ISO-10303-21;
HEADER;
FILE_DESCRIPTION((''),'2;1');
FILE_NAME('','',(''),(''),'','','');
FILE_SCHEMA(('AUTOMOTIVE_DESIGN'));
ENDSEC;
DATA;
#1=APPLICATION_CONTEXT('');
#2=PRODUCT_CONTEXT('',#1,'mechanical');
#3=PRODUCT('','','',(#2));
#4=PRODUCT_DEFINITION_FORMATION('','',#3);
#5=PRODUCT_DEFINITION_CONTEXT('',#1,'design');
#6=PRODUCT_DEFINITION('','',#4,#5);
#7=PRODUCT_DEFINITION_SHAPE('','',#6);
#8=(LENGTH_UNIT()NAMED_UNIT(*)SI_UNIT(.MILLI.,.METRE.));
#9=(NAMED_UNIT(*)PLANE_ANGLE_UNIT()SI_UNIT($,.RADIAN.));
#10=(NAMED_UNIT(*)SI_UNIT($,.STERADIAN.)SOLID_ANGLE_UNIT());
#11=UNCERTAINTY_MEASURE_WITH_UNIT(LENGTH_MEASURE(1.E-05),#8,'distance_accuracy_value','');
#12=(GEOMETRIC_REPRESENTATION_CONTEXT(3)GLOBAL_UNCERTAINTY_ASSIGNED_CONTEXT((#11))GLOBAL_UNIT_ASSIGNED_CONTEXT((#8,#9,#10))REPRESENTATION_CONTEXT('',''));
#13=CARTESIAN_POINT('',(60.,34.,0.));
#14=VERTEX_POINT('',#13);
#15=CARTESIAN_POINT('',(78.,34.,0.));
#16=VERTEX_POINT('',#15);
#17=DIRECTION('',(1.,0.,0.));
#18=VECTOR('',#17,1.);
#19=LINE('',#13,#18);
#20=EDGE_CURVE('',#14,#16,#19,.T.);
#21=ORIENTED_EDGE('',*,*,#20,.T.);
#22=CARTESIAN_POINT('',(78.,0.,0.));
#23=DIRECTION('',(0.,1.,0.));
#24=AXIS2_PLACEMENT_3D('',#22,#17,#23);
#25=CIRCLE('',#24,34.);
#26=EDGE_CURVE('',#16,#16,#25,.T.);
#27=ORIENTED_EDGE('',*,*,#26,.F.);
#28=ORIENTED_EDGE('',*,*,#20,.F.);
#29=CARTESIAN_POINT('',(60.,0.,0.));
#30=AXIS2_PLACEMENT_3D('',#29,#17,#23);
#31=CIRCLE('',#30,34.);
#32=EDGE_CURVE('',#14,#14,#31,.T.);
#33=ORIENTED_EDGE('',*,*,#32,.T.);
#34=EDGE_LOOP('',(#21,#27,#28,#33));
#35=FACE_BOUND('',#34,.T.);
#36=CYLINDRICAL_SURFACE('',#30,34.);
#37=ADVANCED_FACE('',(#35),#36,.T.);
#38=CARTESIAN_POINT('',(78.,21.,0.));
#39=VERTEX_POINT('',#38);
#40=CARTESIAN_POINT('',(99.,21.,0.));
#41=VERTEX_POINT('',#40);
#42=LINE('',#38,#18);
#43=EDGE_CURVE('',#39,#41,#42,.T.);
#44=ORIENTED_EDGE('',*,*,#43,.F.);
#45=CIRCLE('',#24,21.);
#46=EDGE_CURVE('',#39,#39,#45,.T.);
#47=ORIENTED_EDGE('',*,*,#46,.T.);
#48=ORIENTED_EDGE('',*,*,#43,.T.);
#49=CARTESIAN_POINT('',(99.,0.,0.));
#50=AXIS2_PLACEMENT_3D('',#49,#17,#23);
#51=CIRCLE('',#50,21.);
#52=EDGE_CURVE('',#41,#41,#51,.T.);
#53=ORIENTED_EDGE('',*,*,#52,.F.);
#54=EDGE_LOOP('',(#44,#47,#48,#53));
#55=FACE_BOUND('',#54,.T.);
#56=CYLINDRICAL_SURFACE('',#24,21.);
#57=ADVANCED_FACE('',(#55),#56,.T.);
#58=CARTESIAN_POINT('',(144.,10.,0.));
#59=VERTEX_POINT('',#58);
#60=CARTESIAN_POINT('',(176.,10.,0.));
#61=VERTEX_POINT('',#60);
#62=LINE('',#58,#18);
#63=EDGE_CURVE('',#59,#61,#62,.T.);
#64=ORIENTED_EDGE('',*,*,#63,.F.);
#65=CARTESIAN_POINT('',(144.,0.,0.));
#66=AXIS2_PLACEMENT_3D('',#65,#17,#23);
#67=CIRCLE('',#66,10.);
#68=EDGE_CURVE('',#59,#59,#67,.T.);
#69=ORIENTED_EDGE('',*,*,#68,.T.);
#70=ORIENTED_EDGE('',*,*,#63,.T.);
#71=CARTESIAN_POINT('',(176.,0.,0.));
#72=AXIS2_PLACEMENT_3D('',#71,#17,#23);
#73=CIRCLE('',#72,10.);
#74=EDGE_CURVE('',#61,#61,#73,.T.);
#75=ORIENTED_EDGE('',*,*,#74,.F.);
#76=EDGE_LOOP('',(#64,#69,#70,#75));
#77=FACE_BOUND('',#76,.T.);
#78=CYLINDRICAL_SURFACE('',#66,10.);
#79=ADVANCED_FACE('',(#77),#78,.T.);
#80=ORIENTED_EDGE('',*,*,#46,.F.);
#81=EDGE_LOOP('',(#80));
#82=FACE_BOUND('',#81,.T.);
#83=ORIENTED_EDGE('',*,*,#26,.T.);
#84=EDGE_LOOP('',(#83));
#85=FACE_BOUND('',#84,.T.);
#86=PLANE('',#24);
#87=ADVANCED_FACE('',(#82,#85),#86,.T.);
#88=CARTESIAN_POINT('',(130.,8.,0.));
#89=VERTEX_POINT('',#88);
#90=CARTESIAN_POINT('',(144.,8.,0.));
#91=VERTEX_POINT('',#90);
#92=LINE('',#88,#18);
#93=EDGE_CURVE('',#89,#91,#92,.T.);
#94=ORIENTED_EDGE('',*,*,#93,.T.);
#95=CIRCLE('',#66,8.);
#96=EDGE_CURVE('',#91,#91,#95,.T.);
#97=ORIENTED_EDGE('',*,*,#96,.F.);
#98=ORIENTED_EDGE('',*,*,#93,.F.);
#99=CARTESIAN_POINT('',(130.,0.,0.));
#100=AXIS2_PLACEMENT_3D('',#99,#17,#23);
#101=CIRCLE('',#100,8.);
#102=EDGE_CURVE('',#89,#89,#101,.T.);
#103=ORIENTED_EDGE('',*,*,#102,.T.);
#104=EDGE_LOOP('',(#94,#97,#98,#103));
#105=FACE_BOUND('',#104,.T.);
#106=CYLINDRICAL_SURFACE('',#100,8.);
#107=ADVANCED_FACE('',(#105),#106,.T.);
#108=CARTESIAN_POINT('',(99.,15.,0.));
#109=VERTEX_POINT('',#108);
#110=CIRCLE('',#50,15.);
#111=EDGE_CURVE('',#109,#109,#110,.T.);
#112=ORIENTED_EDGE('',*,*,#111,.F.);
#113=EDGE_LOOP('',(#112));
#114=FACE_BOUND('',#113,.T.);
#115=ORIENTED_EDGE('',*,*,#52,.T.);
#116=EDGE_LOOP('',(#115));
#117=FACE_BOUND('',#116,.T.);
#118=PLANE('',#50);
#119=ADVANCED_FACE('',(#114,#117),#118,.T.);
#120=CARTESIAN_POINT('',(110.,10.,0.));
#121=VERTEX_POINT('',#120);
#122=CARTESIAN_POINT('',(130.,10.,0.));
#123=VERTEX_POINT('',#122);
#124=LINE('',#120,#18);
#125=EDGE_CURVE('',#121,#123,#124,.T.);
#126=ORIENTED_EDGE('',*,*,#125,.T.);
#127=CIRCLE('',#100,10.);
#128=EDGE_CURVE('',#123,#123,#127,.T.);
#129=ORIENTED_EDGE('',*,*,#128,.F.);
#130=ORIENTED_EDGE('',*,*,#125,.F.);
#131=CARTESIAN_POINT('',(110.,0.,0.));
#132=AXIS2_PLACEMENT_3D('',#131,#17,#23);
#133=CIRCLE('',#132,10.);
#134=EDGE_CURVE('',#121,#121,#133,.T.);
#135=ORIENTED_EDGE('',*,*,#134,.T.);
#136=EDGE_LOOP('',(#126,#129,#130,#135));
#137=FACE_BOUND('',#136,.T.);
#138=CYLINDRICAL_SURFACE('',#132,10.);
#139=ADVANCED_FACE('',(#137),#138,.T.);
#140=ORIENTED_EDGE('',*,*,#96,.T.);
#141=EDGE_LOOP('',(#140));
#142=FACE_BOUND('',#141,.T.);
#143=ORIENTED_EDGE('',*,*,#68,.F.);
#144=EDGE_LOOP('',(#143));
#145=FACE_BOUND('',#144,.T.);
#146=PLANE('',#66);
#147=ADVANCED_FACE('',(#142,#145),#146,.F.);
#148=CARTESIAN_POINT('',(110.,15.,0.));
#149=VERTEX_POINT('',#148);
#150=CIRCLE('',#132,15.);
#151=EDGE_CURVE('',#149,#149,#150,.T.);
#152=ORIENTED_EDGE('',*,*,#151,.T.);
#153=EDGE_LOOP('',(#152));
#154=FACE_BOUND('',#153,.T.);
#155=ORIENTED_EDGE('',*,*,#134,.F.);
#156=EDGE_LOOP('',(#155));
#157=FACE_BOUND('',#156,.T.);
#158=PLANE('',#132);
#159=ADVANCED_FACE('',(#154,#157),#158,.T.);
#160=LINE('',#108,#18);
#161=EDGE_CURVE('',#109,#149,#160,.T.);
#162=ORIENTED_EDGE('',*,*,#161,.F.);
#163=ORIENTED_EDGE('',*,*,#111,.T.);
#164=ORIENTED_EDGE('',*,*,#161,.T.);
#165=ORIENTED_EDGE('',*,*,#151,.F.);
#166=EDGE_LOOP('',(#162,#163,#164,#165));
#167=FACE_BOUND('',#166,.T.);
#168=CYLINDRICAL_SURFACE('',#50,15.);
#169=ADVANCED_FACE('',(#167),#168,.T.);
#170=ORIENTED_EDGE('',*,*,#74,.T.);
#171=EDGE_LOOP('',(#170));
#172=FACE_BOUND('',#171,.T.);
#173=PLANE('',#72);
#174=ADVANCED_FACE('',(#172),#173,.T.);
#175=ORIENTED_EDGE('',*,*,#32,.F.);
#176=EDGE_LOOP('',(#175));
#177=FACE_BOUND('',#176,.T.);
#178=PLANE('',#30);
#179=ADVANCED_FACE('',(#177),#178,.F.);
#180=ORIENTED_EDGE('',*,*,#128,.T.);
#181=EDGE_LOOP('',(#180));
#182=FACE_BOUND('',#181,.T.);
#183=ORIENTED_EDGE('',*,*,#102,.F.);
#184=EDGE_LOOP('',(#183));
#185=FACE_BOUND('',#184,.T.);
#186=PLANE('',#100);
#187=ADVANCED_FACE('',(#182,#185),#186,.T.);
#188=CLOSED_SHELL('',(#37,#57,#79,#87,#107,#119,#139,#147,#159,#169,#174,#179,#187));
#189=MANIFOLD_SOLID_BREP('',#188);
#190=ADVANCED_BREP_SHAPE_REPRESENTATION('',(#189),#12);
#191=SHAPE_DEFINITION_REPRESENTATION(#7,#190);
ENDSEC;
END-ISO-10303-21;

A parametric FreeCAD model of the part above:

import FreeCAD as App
import Part
import Sketcher

V = App.Vector
Q = App.Units.Quantity


def add_polygon(sketch, points):
    """Adds a closed chain of lines whose ends are joined by coincident constraints."""
    first, n = sketch.GeometryCount, len(points)
    for a, b in zip(points, points[1:] + points[:1]):
        sketch.addGeometry(Part.LineSegment(App.Vector(*a, 0), App.Vector(*b, 0)), False)
    for i in range(n):
        sketch.addConstraint(Sketcher.Constraint("Coincident", first + i, 2, first + (i + 1) % n, 1))

doc = App.newDocument("Part")
body = doc.addObject("PartDesign::Body", "Body")

sketch1 = doc.addObject("Sketcher::SketchObject", "Sketch")
body.addObject(sketch1)
sketch1.AttachmentSupport = (doc.XY_Plane, [""])
sketch1.MapMode = "FlatFace"
add_polygon(sketch1, [(60, 34), (60, 0), (176, 0), (176, 10), (144, 10), (144, 8), (130, 8), (130, 10), (110, 10), (110, 15), (99, 15), (99, 21), (78, 21), (78, 34)])
sketch1.addConstraint([
    Sketcher.Constraint("Vertical", 0),
    Sketcher.Constraint("Horizontal", 1),
    Sketcher.Constraint("Vertical", 2),
    Sketcher.Constraint("Horizontal", 3),
    Sketcher.Constraint("Vertical", 4),
    Sketcher.Constraint("Horizontal", 5),
    Sketcher.Constraint("Vertical", 6),
    Sketcher.Constraint("Horizontal", 7),
    Sketcher.Constraint("Vertical", 8),
    Sketcher.Constraint("Horizontal", 9),
    Sketcher.Constraint("Vertical", 10),
    Sketcher.Constraint("Horizontal", 11),
    Sketcher.Constraint("Vertical", 12),
    Sketcher.Constraint("Horizontal", 13),
    Sketcher.Constraint("PointOnObject", 0, 2, -1),
    Sketcher.Constraint("Horizontal", 3, 2, 6, 2),
    Sketcher.Constraint("DistanceX", 3, 2, 3, 1, Q("32 mm")),
    Sketcher.Constraint("DistanceX", 5, 2, 5, 1, Q("14 mm")),
    Sketcher.Constraint("DistanceX", 7, 2, 7, 1, Q("20 mm")),
    Sketcher.Constraint("DistanceX", 9, 2, 9, 1, Q("11 mm")),
    Sketcher.Constraint("DistanceX", 11, 2, 11, 1, Q("21 mm")),
    Sketcher.Constraint("DistanceX", 13, 2, 13, 1, Q("18 mm")),
    Sketcher.Constraint("DistanceY", 0, 2, 0, 1, Q("34 mm")),
    Sketcher.Constraint("DistanceY", 2, 1, 2, 2, Q("10 mm")),
    Sketcher.Constraint("DistanceY", -1, 1, 4, 2, Q("8 mm")),
    Sketcher.Constraint("DistanceY", -1, 1, 8, 2, Q("15 mm")),
    Sketcher.Constraint("DistanceY", -1, 1, 10, 2, Q("21 mm")),
    Sketcher.Constraint("DistanceX", -1, 1, 0, 2, Q("60 mm")),
])
revolution = doc.addObject("PartDesign::Revolution", "Revolution")
body.addObject(revolution)
revolution.Profile = sketch1
revolution.ReferenceAxis = (sketch1, ["H_Axis"])
revolution.Angle = 360

doc.recompute()
